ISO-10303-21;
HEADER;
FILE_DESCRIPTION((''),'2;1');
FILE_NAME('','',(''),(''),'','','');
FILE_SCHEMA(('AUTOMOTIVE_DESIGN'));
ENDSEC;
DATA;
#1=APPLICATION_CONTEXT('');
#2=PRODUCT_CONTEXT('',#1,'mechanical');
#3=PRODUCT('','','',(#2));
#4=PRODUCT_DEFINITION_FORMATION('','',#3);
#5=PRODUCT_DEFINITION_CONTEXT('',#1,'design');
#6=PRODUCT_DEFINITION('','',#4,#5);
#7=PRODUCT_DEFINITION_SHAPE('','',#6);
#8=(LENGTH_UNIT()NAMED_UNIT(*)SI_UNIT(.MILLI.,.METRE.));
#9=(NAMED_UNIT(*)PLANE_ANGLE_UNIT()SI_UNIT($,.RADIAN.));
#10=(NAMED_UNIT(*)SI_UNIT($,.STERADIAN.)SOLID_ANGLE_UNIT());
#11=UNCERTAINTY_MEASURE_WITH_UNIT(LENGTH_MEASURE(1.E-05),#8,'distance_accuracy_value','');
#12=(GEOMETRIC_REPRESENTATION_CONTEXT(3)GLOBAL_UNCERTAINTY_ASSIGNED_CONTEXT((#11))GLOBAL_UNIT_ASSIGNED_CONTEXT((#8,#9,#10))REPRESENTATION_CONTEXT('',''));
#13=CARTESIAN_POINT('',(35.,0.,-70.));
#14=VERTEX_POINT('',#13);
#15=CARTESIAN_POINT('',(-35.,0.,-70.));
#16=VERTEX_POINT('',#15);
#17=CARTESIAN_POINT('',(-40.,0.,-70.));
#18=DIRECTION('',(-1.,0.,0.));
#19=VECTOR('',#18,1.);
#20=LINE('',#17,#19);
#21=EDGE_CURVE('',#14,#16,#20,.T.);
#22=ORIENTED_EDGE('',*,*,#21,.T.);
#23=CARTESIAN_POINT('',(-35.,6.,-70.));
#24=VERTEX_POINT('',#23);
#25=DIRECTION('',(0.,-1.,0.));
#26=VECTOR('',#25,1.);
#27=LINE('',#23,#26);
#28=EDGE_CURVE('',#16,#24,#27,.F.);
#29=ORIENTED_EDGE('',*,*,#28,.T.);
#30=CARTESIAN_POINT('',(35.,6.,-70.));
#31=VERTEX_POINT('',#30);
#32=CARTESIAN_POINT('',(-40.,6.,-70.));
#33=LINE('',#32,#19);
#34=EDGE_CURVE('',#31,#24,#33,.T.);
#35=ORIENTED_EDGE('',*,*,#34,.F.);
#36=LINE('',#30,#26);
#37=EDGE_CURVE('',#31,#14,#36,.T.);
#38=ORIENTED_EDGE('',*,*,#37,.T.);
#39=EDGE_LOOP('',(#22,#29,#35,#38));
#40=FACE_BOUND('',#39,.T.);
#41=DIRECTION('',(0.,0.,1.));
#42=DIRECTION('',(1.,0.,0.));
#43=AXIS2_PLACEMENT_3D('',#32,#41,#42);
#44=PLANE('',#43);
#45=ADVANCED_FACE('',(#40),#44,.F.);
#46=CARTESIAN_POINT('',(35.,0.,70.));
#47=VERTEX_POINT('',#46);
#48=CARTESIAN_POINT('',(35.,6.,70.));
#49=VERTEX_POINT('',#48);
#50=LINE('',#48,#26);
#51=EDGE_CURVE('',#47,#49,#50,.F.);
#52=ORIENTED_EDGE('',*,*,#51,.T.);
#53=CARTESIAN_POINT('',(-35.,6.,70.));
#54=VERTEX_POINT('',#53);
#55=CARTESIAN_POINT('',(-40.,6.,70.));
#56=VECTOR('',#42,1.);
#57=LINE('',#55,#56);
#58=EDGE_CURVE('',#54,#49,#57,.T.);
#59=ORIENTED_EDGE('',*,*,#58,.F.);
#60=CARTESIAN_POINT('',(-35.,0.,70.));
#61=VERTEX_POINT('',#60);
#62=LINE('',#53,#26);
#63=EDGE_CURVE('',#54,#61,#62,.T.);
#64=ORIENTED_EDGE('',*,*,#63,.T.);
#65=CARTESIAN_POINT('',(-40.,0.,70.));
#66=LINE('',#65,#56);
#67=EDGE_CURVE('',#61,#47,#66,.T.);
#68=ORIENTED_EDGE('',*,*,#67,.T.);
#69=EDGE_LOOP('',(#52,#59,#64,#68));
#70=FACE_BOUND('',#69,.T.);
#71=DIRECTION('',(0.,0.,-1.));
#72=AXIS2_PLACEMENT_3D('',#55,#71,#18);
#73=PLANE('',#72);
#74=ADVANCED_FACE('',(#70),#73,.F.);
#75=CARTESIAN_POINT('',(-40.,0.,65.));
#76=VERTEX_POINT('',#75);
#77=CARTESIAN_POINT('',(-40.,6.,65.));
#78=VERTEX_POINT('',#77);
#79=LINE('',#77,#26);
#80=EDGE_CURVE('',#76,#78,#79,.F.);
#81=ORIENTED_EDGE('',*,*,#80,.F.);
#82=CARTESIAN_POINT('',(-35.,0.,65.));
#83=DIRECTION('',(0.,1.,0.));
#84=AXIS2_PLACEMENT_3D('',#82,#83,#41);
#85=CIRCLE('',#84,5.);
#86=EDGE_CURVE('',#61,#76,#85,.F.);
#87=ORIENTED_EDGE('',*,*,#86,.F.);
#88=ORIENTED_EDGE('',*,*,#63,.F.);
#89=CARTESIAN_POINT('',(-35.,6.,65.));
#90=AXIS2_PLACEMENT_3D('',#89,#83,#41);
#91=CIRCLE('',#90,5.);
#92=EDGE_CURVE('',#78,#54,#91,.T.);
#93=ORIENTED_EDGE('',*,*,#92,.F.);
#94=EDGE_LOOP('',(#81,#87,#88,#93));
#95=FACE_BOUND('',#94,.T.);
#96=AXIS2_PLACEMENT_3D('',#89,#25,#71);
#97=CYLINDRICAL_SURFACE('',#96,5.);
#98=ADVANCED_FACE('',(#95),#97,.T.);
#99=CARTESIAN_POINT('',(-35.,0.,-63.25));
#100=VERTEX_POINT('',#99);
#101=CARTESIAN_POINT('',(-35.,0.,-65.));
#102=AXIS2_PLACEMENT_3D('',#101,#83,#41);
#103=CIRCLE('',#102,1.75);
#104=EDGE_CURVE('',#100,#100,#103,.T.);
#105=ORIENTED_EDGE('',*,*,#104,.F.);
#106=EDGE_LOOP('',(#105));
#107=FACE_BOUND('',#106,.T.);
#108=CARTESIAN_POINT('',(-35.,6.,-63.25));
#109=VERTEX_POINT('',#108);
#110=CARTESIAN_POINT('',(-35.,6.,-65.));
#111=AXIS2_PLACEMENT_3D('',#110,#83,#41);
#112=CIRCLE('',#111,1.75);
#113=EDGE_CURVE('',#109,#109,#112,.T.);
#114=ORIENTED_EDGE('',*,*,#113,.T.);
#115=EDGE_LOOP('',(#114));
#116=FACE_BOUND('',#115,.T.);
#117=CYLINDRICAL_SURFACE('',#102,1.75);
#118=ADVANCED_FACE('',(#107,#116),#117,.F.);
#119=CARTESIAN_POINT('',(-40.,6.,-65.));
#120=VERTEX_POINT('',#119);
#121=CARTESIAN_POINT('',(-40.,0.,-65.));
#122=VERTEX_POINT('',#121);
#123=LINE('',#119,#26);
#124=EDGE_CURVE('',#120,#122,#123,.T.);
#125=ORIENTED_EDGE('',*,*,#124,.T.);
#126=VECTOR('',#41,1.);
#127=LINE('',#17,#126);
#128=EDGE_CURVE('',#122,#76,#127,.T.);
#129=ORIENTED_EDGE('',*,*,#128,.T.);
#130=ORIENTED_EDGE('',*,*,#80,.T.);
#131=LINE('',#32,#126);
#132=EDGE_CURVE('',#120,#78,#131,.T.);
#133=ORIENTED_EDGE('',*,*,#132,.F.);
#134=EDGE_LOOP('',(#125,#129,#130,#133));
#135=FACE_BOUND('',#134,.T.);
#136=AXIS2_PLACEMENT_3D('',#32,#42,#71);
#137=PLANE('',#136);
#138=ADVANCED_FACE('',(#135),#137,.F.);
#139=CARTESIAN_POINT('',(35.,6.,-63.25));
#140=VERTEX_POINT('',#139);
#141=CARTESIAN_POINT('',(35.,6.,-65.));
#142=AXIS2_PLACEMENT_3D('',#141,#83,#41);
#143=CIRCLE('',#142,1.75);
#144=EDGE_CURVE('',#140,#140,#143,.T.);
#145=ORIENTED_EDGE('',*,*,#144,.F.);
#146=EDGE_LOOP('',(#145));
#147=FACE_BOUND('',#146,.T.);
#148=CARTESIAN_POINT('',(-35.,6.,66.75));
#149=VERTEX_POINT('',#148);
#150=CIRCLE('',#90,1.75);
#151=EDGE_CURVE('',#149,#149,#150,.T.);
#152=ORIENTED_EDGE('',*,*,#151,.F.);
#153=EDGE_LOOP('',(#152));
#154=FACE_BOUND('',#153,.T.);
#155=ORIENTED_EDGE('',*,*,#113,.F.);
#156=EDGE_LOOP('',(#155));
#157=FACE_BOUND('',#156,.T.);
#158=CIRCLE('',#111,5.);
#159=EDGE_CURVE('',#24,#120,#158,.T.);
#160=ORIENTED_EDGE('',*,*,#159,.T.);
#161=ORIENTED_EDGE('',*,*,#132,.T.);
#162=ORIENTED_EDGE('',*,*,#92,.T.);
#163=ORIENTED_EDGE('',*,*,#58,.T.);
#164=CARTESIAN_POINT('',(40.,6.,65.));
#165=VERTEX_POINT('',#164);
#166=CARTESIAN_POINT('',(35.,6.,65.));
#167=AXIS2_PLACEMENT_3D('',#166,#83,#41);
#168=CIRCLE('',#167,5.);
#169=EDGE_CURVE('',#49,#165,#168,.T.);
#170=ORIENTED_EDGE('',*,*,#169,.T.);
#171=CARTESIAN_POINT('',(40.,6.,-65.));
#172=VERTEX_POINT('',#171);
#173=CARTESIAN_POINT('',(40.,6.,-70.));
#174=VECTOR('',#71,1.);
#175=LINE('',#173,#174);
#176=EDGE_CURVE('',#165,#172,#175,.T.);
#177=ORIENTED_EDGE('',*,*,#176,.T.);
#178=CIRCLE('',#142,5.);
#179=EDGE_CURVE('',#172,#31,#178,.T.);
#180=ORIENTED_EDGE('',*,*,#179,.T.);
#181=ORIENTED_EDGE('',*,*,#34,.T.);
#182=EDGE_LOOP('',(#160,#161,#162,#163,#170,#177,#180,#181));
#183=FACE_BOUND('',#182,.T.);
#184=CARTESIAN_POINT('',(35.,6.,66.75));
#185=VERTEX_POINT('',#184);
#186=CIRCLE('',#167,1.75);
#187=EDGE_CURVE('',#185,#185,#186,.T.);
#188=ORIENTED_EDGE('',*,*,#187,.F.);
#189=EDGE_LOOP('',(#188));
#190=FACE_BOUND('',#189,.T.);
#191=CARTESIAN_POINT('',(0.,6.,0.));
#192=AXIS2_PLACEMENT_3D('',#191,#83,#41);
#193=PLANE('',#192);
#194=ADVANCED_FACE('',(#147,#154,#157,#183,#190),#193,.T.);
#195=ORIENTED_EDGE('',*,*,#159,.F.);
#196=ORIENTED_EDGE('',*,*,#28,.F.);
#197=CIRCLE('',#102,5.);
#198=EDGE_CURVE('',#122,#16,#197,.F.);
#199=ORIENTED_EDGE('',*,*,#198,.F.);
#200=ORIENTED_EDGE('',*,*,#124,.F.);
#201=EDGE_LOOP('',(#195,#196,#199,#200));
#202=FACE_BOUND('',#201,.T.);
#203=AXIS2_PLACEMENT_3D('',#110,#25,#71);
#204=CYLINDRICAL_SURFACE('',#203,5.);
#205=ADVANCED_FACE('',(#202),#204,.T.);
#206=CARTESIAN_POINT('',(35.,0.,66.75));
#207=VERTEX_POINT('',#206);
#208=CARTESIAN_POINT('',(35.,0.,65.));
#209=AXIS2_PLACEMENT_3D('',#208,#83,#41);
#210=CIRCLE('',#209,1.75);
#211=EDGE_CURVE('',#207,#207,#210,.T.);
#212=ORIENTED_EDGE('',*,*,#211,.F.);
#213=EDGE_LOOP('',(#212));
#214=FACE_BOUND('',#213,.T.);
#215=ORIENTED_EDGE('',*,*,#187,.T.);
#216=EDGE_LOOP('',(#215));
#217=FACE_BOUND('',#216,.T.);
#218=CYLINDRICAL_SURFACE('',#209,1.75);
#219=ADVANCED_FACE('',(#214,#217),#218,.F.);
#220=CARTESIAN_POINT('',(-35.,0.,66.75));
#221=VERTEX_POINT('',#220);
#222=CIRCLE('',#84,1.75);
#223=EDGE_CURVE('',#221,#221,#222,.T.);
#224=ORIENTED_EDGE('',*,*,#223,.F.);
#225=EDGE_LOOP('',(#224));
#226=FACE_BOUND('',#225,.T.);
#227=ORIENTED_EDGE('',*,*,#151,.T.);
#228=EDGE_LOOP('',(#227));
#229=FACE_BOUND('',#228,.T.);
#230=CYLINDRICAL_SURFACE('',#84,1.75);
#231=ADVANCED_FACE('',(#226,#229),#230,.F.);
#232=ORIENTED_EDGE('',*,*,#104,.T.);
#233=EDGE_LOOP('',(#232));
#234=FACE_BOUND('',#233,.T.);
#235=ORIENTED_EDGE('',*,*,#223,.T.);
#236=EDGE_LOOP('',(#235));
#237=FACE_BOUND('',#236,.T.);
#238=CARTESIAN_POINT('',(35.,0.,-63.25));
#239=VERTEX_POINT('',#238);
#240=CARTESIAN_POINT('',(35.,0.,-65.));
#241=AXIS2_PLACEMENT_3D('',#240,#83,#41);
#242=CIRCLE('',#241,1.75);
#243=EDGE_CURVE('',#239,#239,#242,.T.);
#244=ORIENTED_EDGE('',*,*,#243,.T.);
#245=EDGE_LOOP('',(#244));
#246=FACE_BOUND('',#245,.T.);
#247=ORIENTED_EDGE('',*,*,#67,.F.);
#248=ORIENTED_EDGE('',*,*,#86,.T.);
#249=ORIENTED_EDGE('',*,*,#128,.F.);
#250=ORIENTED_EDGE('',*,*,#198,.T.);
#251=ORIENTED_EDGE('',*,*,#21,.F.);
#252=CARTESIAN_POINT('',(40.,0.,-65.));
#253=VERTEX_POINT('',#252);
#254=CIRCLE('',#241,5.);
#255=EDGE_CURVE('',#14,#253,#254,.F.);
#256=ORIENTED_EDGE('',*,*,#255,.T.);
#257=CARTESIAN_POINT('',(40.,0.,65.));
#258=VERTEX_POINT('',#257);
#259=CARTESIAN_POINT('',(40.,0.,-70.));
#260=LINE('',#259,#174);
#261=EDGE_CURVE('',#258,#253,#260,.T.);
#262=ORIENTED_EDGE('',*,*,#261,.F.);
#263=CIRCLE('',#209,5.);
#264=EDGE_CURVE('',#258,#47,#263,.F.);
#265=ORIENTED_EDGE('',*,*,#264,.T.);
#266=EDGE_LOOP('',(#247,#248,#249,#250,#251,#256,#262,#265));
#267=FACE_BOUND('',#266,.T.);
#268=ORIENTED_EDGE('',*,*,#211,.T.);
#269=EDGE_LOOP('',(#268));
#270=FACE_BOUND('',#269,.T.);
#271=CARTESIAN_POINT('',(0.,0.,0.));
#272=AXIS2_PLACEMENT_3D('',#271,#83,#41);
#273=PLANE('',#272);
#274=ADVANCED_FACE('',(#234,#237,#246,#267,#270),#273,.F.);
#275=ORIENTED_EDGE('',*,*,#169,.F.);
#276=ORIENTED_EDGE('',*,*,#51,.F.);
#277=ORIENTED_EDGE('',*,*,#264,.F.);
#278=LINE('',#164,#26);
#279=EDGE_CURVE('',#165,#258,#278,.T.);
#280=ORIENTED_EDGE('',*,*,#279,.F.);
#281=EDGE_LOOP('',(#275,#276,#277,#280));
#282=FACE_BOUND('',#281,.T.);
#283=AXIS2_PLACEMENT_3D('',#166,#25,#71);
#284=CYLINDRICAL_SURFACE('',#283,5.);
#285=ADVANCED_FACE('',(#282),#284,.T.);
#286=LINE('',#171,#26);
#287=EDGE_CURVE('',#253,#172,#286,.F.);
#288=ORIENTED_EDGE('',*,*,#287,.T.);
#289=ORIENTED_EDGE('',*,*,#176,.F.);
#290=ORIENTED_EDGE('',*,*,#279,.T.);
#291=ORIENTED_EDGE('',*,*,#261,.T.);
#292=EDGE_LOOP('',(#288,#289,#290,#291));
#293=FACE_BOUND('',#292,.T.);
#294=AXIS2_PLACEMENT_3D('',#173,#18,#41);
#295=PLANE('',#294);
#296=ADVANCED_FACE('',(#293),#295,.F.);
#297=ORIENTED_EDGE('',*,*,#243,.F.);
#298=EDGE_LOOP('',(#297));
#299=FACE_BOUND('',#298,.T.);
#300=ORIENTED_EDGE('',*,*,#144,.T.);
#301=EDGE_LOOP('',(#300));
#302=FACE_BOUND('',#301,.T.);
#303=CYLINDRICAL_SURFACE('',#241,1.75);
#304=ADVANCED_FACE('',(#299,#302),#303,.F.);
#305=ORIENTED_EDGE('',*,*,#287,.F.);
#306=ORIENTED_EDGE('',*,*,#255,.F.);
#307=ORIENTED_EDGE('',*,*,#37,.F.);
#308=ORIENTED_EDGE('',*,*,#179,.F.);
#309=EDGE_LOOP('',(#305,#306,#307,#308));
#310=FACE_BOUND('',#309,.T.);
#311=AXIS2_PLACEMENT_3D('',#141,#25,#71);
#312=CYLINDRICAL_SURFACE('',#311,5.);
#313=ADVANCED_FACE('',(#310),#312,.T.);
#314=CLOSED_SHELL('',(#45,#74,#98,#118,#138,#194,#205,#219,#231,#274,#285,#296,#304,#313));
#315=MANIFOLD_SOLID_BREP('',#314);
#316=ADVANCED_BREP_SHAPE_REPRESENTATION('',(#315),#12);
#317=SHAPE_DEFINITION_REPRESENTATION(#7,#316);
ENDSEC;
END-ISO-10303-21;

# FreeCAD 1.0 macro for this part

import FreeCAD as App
import Part
import Sketcher

V = App.Vector


def edges_at(feature, points):
    """Names of the edges that pass closest to the given points."""
    edges = feature.Shape.Edges
    near = lambda p: min(range(len(edges)), key=lambda i: edges[i].distToShape(Part.Vertex(*p))[0])
    return sorted({f"Edge{near(p) + 1}" for p in points})

doc = App.newDocument("Part")
params = doc.addObject("Spreadsheet::Sheet", "Params")
for row, (alias, value) in enumerate([
    ("sketch1_width", "80 mm"),
    ("sketch1_height", "140 mm"),
    ("pad1_length", "6 mm"),
    ("sketch2_diameter", "3.5 mm"),
    ("fillet_radius", "5 mm"),
], start=1):
    params.set(f"A{row}", alias)
    params.set(f"B{row}", "=" + value)
    params.setAlias(f"B{row}", alias)

body = doc.addObject("PartDesign::Body", "Body")

sketch1 = doc.addObject("Sketcher::SketchObject", "Sketch")
body.addObject(sketch1)
sketch1.AttachmentSupport = (doc.XZ_Plane, [""])
sketch1.MapMode = "FlatFace"
sketch1.addGeometry([
    Part.LineSegment(V(-40, -70, 0), V(-40, 70, 0)),
    Part.LineSegment(V(-40, 70, 0), V(40, 70, 0)),
    Part.LineSegment(V(40, 70, 0), V(40, -70, 0)),
    Part.LineSegment(V(40, -70, 0), V(-40, -70, 0)),
], False)
sketch1.addConstraint([
    Sketcher.Constraint("Coincident", 0, 2, 1, 1),
    Sketcher.Constraint("Coincident", 1, 2, 2, 1),
    Sketcher.Constraint("Coincident", 2, 2, 3, 1),
    Sketcher.Constraint("Coincident", 3, 2, 0, 1),
    Sketcher.Constraint("Vertical", 0),
    Sketcher.Constraint("Horizontal", 1),
    Sketcher.Constraint("Vertical", 2),
    Sketcher.Constraint("Horizontal", 3),
    Sketcher.Constraint("Symmetric", 0, 2, 2, 2, -1, 1),
    Sketcher.Constraint("DistanceX", 1, 1, 1, 2, 80.0),
    Sketcher.Constraint("DistanceY", 0, 1, 0, 2, 140.0),
])
sketch1.setExpression("Constraints[9]", "Params.sketch1_width")
sketch1.setExpression("Constraints[10]", "Params.sketch1_height")
pad1 = doc.addObject("PartDesign::Pad", "Pad")
body.addObject(pad1)
pad1.Profile = sketch1
pad1.setExpression("Length", "Params.pad1_length")
pad1.Reversed = True

sketch2 = doc.addObject("Sketcher::SketchObject", "Sketch001")
body.addObject(sketch2)
sketch2.AttachmentSupport = (doc.XZ_Plane, [""])
sketch2.MapMode = "FlatFace"
sketch2.AttachmentOffset = App.Placement(V(0, 0, -6), App.Rotation())
sketch2.addGeometry([
    Part.Circle(V(-35, -65, 0), V(0, 0, 1), 1.8),
    Part.Circle(V(35, -65, 0), V(0, 0, 1), 1.8),
    Part.Circle(V(-35, 65, 0), V(0, 0, 1), 1.8),
    Part.Circle(V(35, 65, 0), V(0, 0, 1), 1.8),
], False)
sketch2.addConstraint([
    Sketcher.Constraint("Equal", 0, 1),
    Sketcher.Constraint("Equal", 1, 2),
    Sketcher.Constraint("Equal", 2, 3),
    Sketcher.Constraint("Symmetric", 1, 3, 2, 3, -1, 1),
    Sketcher.Constraint("Symmetric", 0, 3, 3, 3, -1, 1),
    Sketcher.Constraint("Symmetric", 0, 3, 1, 3, -2),
    Sketcher.Constraint("Diameter", 0, 3.5),
    Sketcher.Constraint("DistanceX", 0, 3, -1, 1, 35.0),
    Sketcher.Constraint("DistanceY", 0, 3, -1, 1, 65.0),
])
sketch2.setExpression("Constraints[6]", "Params.sketch2_diameter")
pocket1 = doc.addObject("PartDesign::Pocket", "Pocket")
body.addObject(pocket1)
pocket1.Profile = sketch2
pocket1.Type = "ThroughAll"
pocket1.Reversed = True
doc.recompute()

fillet = doc.addObject("PartDesign::Fillet", "Fillet")
body.addObject(fillet)
fillet.Base = (pocket1, edges_at(pocket1, [
    (40, 3, 70),
    (-40, 3, 70),
    (-40, 3, -70),
    (40, 3, -70),
]))
fillet.setExpression("Radius", "Params.fillet_radius")

doc.recompute()
